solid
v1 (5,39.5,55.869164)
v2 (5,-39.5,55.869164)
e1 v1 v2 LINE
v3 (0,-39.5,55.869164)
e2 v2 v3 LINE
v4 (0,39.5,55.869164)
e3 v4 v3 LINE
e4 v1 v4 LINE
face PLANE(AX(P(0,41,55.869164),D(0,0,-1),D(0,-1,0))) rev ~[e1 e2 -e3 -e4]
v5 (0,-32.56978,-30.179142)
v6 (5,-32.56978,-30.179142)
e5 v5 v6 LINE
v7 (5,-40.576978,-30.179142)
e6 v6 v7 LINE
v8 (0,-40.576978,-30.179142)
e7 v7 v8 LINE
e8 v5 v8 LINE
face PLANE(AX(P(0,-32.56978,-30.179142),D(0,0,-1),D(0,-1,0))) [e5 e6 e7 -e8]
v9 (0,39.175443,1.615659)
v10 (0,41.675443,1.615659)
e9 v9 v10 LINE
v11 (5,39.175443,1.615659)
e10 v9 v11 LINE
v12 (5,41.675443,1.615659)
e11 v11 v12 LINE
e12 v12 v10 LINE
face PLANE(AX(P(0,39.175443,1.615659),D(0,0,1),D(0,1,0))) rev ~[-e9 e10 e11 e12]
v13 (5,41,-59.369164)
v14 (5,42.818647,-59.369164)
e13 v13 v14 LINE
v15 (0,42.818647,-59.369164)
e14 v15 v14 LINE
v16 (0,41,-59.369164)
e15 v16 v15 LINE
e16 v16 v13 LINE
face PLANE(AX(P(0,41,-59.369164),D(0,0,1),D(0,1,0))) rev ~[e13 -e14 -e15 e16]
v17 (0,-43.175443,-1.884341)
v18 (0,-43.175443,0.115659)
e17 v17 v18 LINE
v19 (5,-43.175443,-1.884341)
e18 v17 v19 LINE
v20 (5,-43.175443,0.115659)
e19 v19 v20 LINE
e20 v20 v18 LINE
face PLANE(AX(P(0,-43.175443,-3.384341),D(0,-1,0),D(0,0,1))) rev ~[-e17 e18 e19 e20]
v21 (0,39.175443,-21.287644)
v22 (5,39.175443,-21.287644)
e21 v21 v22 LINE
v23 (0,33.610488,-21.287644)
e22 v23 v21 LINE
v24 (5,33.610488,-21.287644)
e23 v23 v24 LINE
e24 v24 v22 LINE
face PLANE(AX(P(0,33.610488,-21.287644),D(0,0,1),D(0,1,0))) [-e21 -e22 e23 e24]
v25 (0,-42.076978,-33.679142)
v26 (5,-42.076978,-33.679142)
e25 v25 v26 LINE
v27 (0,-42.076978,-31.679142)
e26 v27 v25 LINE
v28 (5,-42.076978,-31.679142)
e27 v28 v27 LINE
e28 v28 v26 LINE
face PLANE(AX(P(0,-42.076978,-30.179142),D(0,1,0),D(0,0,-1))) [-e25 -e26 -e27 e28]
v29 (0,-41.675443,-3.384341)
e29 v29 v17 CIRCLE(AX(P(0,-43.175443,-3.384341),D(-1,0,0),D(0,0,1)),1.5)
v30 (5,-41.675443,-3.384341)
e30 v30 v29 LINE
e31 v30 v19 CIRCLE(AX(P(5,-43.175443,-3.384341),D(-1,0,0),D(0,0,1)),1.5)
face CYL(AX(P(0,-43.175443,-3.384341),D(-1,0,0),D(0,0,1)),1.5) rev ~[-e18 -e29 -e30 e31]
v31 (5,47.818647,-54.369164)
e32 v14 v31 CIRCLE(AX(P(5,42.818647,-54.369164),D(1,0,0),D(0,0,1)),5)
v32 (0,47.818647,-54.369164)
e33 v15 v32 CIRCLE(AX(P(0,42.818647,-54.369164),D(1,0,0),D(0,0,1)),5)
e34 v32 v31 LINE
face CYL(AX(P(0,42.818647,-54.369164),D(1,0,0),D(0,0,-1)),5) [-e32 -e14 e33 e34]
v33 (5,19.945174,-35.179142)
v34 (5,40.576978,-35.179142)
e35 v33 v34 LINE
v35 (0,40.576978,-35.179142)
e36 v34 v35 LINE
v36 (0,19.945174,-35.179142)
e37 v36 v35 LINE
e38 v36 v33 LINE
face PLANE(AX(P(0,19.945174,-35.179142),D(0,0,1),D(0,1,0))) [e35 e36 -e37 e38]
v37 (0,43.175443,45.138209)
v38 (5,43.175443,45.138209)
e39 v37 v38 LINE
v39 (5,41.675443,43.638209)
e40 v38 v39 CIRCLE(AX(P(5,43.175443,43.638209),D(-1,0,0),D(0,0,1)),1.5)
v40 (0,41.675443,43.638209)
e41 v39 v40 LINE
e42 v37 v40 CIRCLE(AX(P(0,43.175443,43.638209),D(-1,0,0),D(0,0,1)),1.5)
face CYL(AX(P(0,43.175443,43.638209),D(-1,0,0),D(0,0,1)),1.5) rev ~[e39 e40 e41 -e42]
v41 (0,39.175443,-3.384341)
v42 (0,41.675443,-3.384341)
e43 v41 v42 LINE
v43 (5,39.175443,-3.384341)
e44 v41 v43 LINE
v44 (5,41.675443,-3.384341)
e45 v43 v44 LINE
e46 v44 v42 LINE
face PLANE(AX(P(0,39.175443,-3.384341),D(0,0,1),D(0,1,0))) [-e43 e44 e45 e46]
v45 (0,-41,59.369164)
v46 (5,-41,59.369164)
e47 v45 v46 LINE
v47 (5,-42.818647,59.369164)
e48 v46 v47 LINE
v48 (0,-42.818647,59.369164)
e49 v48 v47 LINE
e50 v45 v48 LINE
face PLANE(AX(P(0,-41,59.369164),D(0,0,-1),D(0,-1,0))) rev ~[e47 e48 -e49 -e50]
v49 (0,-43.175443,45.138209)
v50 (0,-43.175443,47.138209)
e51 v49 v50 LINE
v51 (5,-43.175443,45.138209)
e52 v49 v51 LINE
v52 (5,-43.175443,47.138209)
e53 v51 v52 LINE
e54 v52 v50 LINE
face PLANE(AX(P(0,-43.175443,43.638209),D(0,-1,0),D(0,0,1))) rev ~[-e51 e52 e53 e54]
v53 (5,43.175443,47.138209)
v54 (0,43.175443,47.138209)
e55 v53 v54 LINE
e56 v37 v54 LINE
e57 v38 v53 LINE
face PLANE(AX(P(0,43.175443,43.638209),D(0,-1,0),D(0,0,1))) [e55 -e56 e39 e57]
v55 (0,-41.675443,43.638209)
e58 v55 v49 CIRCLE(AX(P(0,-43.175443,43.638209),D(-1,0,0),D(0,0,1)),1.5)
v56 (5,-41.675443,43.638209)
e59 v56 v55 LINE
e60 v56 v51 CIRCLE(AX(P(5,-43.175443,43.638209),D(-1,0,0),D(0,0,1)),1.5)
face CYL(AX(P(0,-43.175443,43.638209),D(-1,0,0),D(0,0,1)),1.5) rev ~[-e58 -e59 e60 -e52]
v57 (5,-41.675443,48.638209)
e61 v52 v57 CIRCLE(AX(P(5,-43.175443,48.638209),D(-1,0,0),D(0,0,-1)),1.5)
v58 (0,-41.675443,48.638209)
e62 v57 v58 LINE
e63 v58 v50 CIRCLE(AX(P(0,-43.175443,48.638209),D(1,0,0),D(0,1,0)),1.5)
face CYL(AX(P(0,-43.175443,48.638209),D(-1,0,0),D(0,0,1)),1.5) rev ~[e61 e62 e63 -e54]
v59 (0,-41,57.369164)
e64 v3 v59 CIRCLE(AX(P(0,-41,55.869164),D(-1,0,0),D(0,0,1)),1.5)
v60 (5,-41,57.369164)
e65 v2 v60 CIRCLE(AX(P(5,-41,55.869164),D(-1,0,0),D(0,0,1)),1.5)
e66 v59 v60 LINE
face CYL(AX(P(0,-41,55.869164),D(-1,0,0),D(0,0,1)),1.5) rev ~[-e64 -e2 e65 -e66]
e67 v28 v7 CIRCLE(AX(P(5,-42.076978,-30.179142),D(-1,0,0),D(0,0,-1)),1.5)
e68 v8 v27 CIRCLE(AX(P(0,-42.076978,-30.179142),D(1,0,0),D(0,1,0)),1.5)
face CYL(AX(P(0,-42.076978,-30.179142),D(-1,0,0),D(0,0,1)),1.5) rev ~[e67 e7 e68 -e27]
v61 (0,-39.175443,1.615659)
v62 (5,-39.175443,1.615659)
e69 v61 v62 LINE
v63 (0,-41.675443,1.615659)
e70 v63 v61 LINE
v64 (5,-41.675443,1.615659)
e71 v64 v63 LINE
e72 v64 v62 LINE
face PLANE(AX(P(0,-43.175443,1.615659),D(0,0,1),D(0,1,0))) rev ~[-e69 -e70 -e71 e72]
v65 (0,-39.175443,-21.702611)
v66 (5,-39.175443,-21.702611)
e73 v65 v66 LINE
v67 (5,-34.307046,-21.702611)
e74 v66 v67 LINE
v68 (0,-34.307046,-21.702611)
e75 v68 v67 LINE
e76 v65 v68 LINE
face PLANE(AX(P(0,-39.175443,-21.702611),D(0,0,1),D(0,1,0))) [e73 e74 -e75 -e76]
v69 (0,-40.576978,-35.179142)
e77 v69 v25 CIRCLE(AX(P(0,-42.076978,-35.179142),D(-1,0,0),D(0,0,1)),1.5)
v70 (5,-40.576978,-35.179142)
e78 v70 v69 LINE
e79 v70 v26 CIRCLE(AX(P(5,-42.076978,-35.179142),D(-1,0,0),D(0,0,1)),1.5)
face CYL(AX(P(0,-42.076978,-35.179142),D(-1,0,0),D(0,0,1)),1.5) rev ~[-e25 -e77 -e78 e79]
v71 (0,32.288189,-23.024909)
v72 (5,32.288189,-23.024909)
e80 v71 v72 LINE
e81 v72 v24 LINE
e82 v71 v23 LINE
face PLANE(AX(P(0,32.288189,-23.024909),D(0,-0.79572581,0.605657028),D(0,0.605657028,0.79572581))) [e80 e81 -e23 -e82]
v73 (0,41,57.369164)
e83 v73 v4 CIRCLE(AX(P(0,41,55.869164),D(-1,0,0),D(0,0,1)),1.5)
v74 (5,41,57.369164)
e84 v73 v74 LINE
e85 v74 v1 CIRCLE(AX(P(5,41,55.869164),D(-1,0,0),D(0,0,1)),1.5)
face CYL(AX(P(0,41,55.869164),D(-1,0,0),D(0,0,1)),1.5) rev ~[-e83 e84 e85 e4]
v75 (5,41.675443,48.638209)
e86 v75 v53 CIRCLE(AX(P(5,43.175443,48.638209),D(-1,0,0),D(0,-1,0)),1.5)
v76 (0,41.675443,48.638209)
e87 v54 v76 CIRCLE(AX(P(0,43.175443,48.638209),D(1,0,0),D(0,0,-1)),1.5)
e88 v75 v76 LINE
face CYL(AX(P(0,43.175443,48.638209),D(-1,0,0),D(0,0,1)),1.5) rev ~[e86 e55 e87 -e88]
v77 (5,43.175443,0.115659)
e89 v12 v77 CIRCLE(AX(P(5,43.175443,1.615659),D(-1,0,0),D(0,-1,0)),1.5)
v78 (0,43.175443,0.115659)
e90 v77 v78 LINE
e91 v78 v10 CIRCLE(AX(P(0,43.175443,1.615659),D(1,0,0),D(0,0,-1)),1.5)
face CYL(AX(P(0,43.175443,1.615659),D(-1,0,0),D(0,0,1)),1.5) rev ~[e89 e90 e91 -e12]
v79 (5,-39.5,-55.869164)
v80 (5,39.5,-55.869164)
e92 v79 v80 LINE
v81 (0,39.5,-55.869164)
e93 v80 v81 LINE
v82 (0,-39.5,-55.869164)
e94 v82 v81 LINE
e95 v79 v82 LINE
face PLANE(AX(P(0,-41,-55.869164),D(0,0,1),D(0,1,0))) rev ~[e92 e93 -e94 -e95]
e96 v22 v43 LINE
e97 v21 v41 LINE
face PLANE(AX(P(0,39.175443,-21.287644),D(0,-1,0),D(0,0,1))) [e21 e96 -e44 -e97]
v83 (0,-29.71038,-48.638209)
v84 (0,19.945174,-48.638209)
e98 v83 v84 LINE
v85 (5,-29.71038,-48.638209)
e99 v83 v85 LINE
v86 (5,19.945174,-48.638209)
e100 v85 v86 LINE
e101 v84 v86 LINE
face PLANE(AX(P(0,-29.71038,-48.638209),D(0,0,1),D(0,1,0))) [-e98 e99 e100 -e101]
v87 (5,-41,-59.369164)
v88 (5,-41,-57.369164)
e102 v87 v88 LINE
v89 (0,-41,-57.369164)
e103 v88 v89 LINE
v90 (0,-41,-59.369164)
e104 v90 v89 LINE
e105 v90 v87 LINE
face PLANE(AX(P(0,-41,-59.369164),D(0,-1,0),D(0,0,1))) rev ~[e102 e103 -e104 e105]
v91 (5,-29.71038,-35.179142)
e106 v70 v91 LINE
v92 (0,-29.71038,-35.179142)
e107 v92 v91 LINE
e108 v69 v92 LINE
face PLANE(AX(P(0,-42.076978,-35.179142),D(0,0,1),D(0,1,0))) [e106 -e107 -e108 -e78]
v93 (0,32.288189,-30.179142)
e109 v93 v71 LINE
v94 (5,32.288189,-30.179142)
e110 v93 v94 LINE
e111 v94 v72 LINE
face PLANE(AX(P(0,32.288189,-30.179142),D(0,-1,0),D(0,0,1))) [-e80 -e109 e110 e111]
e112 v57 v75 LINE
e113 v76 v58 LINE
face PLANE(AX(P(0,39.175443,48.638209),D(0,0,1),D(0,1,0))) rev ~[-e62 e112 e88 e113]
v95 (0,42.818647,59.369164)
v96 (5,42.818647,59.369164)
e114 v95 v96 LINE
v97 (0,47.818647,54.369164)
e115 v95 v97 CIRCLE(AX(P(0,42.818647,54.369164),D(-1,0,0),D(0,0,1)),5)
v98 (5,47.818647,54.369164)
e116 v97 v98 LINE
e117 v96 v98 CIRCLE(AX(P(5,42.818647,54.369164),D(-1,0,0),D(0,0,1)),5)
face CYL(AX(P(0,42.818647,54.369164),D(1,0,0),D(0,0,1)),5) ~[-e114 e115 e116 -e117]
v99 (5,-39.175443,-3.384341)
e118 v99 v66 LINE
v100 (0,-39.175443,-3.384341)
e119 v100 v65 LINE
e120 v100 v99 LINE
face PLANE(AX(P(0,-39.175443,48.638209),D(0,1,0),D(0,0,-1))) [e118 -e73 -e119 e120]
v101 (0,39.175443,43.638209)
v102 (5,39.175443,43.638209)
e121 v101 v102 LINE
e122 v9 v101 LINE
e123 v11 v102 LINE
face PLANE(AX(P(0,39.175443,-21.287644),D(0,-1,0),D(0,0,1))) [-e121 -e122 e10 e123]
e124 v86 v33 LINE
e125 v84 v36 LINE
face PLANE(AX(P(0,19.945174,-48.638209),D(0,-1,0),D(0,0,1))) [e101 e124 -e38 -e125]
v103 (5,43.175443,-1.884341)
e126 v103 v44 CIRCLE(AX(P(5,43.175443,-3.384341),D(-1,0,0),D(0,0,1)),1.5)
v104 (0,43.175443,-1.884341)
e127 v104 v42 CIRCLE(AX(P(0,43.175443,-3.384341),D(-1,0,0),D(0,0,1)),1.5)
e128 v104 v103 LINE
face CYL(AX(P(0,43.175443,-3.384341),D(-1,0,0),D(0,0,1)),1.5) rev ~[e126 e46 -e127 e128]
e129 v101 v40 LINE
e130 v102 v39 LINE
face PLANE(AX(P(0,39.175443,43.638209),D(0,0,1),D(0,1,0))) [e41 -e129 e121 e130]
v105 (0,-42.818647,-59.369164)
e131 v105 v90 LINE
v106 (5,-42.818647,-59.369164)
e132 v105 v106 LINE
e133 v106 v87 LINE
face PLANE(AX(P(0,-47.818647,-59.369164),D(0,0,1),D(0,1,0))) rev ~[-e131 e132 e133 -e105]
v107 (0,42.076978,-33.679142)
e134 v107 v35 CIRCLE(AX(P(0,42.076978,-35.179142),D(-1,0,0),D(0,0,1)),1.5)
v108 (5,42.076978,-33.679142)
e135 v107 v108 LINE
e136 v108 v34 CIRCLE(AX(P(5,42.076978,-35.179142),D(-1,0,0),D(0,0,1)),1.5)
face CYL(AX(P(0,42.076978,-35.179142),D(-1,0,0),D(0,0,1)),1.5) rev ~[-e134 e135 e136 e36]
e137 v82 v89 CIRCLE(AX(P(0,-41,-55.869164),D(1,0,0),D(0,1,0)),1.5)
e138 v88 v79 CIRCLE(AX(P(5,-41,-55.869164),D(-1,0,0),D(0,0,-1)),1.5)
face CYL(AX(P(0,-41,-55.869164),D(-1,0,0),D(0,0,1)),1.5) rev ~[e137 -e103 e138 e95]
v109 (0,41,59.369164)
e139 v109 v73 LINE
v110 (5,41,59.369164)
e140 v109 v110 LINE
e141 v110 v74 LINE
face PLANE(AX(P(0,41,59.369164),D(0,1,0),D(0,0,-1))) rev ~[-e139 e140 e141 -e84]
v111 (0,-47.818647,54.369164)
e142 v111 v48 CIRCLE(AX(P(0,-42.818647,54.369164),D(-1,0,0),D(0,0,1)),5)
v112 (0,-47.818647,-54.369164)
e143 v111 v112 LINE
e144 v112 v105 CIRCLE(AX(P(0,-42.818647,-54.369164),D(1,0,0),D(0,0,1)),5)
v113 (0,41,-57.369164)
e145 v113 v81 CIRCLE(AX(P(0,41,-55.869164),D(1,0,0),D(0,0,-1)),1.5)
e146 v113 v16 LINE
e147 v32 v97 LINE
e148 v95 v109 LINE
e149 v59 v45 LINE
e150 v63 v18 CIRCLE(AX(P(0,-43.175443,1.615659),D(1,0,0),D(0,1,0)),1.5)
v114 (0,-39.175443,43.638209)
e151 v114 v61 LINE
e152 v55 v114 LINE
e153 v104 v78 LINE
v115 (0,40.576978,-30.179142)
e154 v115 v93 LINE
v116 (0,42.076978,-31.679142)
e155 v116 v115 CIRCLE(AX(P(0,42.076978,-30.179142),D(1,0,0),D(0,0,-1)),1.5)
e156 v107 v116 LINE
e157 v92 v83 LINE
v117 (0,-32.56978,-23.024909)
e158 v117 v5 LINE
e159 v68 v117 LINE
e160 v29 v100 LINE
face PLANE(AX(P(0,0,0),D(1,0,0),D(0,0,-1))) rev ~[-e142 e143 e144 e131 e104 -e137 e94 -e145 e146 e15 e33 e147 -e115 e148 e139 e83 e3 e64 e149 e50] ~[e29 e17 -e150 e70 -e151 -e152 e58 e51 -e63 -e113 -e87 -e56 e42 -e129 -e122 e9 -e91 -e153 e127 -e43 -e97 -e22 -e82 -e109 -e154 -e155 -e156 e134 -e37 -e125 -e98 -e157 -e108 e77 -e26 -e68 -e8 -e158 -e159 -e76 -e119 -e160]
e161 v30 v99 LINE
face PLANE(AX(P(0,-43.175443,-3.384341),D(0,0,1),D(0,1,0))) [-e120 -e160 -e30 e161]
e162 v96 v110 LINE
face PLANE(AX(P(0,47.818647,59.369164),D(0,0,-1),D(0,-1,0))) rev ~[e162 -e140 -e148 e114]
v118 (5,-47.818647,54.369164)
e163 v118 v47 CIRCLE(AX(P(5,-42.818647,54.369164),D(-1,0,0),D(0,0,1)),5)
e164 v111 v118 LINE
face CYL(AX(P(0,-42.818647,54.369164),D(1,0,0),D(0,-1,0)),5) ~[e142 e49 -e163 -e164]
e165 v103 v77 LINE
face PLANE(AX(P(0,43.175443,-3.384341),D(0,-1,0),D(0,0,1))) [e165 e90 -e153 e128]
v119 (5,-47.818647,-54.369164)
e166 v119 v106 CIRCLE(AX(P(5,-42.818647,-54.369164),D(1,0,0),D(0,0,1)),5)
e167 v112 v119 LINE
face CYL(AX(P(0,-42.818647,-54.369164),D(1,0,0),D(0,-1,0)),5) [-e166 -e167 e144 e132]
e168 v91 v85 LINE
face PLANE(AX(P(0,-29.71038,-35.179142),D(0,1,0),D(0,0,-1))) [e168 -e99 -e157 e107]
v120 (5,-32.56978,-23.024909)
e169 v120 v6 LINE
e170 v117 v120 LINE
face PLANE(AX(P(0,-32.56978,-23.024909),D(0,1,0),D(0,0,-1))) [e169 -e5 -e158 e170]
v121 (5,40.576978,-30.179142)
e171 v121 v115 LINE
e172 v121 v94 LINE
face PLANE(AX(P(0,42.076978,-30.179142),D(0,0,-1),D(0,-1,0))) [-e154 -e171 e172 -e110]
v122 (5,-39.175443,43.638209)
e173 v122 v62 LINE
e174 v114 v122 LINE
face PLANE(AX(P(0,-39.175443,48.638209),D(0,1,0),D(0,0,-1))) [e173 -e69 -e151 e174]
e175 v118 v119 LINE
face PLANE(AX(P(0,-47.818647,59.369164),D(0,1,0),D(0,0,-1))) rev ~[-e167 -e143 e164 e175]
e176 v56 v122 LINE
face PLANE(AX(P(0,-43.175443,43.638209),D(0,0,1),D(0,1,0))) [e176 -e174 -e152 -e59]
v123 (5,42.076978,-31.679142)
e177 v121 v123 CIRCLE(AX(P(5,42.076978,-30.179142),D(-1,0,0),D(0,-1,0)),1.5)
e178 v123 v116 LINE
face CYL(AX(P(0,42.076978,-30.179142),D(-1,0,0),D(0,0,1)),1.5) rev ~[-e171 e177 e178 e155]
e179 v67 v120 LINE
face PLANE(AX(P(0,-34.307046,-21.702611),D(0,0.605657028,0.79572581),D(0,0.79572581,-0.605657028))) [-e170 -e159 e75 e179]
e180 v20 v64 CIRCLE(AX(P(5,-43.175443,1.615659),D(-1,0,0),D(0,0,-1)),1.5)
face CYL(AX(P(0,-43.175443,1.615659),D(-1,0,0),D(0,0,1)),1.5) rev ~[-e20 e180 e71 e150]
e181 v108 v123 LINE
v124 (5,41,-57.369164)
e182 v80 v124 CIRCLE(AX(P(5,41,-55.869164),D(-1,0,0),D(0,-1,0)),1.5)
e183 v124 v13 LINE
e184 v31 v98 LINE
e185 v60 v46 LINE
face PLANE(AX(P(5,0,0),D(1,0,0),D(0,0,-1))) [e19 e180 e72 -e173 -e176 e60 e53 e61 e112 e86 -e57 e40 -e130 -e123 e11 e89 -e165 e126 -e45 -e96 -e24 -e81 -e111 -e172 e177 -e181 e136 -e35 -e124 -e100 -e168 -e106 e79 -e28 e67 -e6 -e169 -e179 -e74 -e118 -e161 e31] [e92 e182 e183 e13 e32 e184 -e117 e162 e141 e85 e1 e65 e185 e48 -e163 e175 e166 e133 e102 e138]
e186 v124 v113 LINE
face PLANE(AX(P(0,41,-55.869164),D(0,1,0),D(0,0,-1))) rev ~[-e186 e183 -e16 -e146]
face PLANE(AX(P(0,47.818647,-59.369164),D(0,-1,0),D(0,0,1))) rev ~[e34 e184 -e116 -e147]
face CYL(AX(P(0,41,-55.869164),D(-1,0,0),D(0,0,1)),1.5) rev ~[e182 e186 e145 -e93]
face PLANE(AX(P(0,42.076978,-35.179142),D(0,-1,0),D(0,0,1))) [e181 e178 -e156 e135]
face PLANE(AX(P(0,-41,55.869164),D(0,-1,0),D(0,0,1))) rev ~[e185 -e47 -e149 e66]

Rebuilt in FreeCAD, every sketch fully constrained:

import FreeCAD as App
import Part
import Sketcher
from FreeCAD import Vector


def edges_at(feature, points):
    """Names of the edges that pass closest to the given points."""
    edges = feature.Shape.Edges
    near = lambda p: min(range(len(edges)), key=lambda i: edges[i].distToShape(Part.Vertex(*p))[0])
    return sorted({f"Edge{near(p) + 1}" for p in points})

doc = App.newDocument("Part")
body = doc.addObject("PartDesign::Body", "Body")

sketch1 = body.newObject("Sketcher::SketchObject", "Sketch")
sketch1.AttachmentSupport = (doc.getObject("YZ_Plane"), [""])
sketch1.MapMode = "FlatFace"
sketch1.addGeometry([
    Part.LineSegment(Vector(-47.818647, 59.369164, 0), Vector(-47.818647, -59.369164, 0)),
    Part.LineSegment(Vector(-47.818647, -59.369164, 0), Vector(-41, -59.369164, 0)),
    Part.LineSegment(Vector(-41, -59.369164, 0), Vector(-41, -55.869164, 0)),
    Part.LineSegment(Vector(-41, -55.869164, 0), Vector(41, -55.869164, 0)),
    Part.LineSegment(Vector(41, -55.869164, 0), Vector(41, -59.369164, 0)),
    Part.LineSegment(Vector(41, -59.369164, 0), Vector(47.818647, -59.369164, 0)),
    Part.LineSegment(Vector(47.818647, -59.369164, 0), Vector(47.818647, 59.369164, 0)),
    Part.LineSegment(Vector(47.818647, 59.369164, 0), Vector(41, 59.369164, 0)),
    Part.LineSegment(Vector(41, 59.369164, 0), Vector(41, 55.869164, 0)),
    Part.LineSegment(Vector(41, 55.869164, 0), Vector(-41, 55.869164, 0)),
    Part.LineSegment(Vector(-41, 55.869164, 0), Vector(-41, 59.369164, 0)),
    Part.LineSegment(Vector(-41, 59.369164, 0), Vector(-47.818647, 59.369164, 0)),
    Part.LineSegment(Vector(-34.307046, -21.702611, 0), Vector(-39.175443, -21.702611, 0)),
    Part.LineSegment(Vector(-39.175443, -21.702611, 0), Vector(-39.175443, 48.638209, 0)),
    Part.LineSegment(Vector(-39.175443, 48.638209, 0), Vector(39.175443, 48.638209, 0)),
    Part.LineSegment(Vector(39.175443, 48.638209, 0), Vector(39.175443, -21.287644, 0)),
    Part.LineSegment(Vector(39.175443, -21.287644, 0), Vector(33.610488, -21.287644, 0)),
    Part.LineSegment(Vector(33.610488, -21.287644, 0), Vector(32.288189, -23.024909, 0)),
    Part.LineSegment(Vector(32.288189, -23.024909, 0), Vector(32.288189, -30.179142, 0)),
    Part.LineSegment(Vector(32.288189, -30.179142, 0), Vector(42.076978, -30.179142, 0)),
    Part.LineSegment(Vector(42.076978, -30.179142, 0), Vector(42.076978, -35.179142, 0)),
    Part.LineSegment(Vector(42.076978, -35.179142, 0), Vector(19.945174, -35.179142, 0)),
    Part.LineSegment(Vector(19.945174, -35.179142, 0), Vector(19.945174, -48.638209, 0)),
    Part.LineSegment(Vector(19.945174, -48.638209, 0), Vector(-29.71038, -48.638209, 0)),
    Part.LineSegment(Vector(-29.71038, -48.638209, 0), Vector(-29.71038, -35.179142, 0)),
    Part.LineSegment(Vector(-29.71038, -35.179142, 0), Vector(-42.076978, -35.179142, 0)),
    Part.LineSegment(Vector(-42.076978, -35.179142, 0), Vector(-42.076978, -30.179142, 0)),
    Part.LineSegment(Vector(-42.076978, -30.179142, 0), Vector(-32.56978, -30.179142, 0)),
    Part.LineSegment(Vector(-32.56978, -30.179142, 0), Vector(-32.56978, -23.024909, 0)),
    Part.LineSegment(Vector(-32.56978, -23.024909, 0), Vector(-34.307046, -21.702611, 0)),
], False)
sketch1.addConstraint([
    Sketcher.Constraint("Coincident", 0, 2, 1, 1),
    Sketcher.Constraint("Coincident", 1, 2, 2, 1),
    Sketcher.Constraint("Coincident", 2, 2, 3, 1),
    Sketcher.Constraint("Coincident", 3, 2, 4, 1),
    Sketcher.Constraint("Coincident", 4, 2, 5, 1),
    Sketcher.Constraint("Coincident", 5, 2, 6, 1),
    Sketcher.Constraint("Coincident", 6, 2, 7, 1),
    Sketcher.Constraint("Coincident", 7, 2, 8, 1),
    Sketcher.Constraint("Coincident", 8, 2, 9, 1),
    Sketcher.Constraint("Coincident", 9, 2, 10, 1),
    Sketcher.Constraint("Coincident", 10, 2, 11, 1),
    Sketcher.Constraint("Coincident", 11, 2, 0, 1),
    Sketcher.Constraint("Coincident", 12, 2, 13, 1),
    Sketcher.Constraint("Coincident", 13, 2, 14, 1),
    Sketcher.Constraint("Coincident", 14, 2, 15, 1),
    Sketcher.Constraint("Coincident", 15, 2, 16, 1),
    Sketcher.Constraint("Coincident", 16, 2, 17, 1),
    Sketcher.Constraint("Coincident", 17, 2, 18, 1),
    Sketcher.Constraint("Coincident", 18, 2, 19, 1),
    Sketcher.Constraint("Coincident", 19, 2, 20, 1),
    Sketcher.Constraint("Coincident", 20, 2, 21, 1),
    Sketcher.Constraint("Coincident", 21, 2, 22, 1),
    Sketcher.Constraint("Coincident", 22, 2, 23, 1),
    Sketcher.Constraint("Coincident", 23, 2, 24, 1),
    Sketcher.Constraint("Coincident", 24, 2, 25, 1),
    Sketcher.Constraint("Coincident", 25, 2, 26, 1),
    Sketcher.Constraint("Coincident", 26, 2, 27, 1),
    Sketcher.Constraint("Coincident", 27, 2, 28, 1),
    Sketcher.Constraint("Coincident", 28, 2, 29, 1),
    Sketcher.Constraint("Coincident", 29, 2, 12, 1),
    Sketcher.Constraint("Vertical", 0),
    Sketcher.Constraint("Horizontal", 1),
    Sketcher.Constraint("Vertical", 2),
    Sketcher.Constraint("Horizontal", 3),
    Sketcher.Constraint("Vertical", 4),
    Sketcher.Constraint("Horizontal", 5),
    Sketcher.Constraint("Vertical", 6),
    Sketcher.Constraint("Horizontal", 7),
    Sketcher.Constraint("Vertical", 8),
    Sketcher.Constraint("Horizontal", 9),
    Sketcher.Constraint("Vertical", 10),
    Sketcher.Constraint("Horizontal", 11),
    Sketcher.Constraint("Horizontal", 12),
    Sketcher.Constraint("Vertical", 13),
    Sketcher.Constraint("Horizontal", 14),
    Sketcher.Constraint("Vertical", 15),
    Sketcher.Constraint("Horizontal", 16),
    Sketcher.Constraint("Vertical", 18),
    Sketcher.Constraint("Horizontal", 19),
    Sketcher.Constraint("Vertical", 20),
    Sketcher.Constraint("Horizontal", 21),
    Sketcher.Constraint("Vertical", 22),
    Sketcher.Constraint("Horizontal", 23),
    Sketcher.Constraint("Vertical", 24),
    Sketcher.Constraint("Horizontal", 25),
    Sketcher.Constraint("Vertical", 26),
    Sketcher.Constraint("Horizontal", 27),
    Sketcher.Constraint("Vertical", 28),
    Sketcher.Constraint("Symmetric", 0, 2, 6, 2, -1, 1),
    Sketcher.Constraint("Symmetric", 2, 2, 8, 2, -1, 1),
    Sketcher.Constraint("Symmetric", 4, 2, 10, 2, -1, 1),
    Sketcher.Constraint("Symmetric", 1, 2, 4, 2, -2),
    Sketcher.Constraint("Symmetric", 20, 2, 25, 2, -2),
    Sketcher.Constraint("Perpendicular", 17, 29),
    Sketcher.Constraint("Horizontal", 19, 2, 26, 2),
    Sketcher.Constraint("Horizontal", 17, 2, 28, 2),
    Sketcher.Constraint("Equal", 17, 29),
    Sketcher.Constraint("DistanceX", 3, 1, 3, 2, 82.0),
    Sketcher.Constraint("DistanceY", 20, 2, 20, 1, 5.0),
    Sketcher.Constraint("DistanceY", 2, 1, 2, 2, 3.5),
    Sketcher.Constraint("DistanceX", 25, 2, 25, 1, 12.366598),
    Sketcher.Constraint("DistanceX", 27, 1, 27, 2, 9.507198),
    Sketcher.Constraint("DistanceX", 19, 1, 19, 2, 9.788789),
    Sketcher.Constraint("DistanceY", 0, 2, 0, 1, 118.738328),
    Sketcher.Constraint("DistanceY", 13, 1, 13, 2, 70.340819),
    Sketcher.Constraint("DistanceX", 17, 2, 16, 2, 1.322299),
    Sketcher.Constraint("DistanceY", 23, 2, 12, 2, 26.935598),
    Sketcher.Constraint("DistanceX", 1, 1, 1, 2, 6.818647),
    Sketcher.Constraint("DistanceX", 12, 2, 12, 1, 4.868397),
    Sketcher.Constraint("DistanceX", 14, 1, 14, 2, 78.350886),
    Sketcher.Constraint("DistanceX", 16, 2, 16, 1, 5.564955),
    Sketcher.Constraint("DistanceX", 21, 2, 21, 1, 22.131804),
    Sketcher.Constraint("DistanceX", 23, 2, 23, 1, 49.655554),
    Sketcher.Constraint("DistanceY", 18, 2, 18, 1, 7.154232),
    Sketcher.Constraint("DistanceY", 12, 2, -1, 1, 21.702611),
])
pad1 = body.newObject("PartDesign::Pad", "Pad")
pad1.Profile = sketch1
pad1.Length = 5
doc.recompute()

fillet = body.newObject("PartDesign::Fillet", "Fillet")
fillet.Base = (pad1, edges_at(pad1, [
    (2.5, -47.819, -59.369),
    (2.5, -47.819, 59.369),
    (2.5, 47.819, 59.369),
    (2.5, 47.819, -59.369),
]))
fillet.Radius = 5

sketch2 = body.newObject("Sketcher::SketchObject", "Sketch001")
sketch2.AttachmentSupport = (doc.getObject("YZ_Plane"), [""])
sketch2.MapMode = "FlatFace"
sketch2.addGeometry([
    Part.LineSegment(Vector(43.175443, 43.638209, 0), Vector(39.175443, 43.638209, 0)),
    Part.LineSegment(Vector(39.175443, 43.638209, 0), Vector(39.175443, 48.638209, 0)),
    Part.LineSegment(Vector(39.175443, 48.638209, 0), Vector(43.175443, 48.638209, 0)),
    Part.LineSegment(Vector(43.175443, 48.638209, 0), Vector(43.175443, 43.638209, 0)),
], False)
sketch2.addConstraint([
    Sketcher.Constraint("Coincident", 0, 2, 1, 1),
    Sketcher.Constraint("Coincident", 1, 2, 2, 1),
    Sketcher.Constraint("Coincident", 2, 2, 3, 1),
    Sketcher.Constraint("Coincident", 3, 2, 0, 1),
    Sketcher.Constraint("Horizontal", 0),
    Sketcher.Constraint("Vertical", 1),
    Sketcher.Constraint("Horizontal", 2),
    Sketcher.Constraint("Vertical", 3),
    Sketcher.Constraint("DistanceX", 0, 2, 0, 1, 4.0),
    Sketcher.Constraint("DistanceY", 1, 1, 1, 2, 5.0),
    Sketcher.Constraint("DistanceY", -1, 1, 0, 2, 43.638209),
    Sketcher.Constraint("DistanceX", -1, 1, 0, 2, 39.175443),
])
pocket1 = body.newObject("PartDesign::Pocket", "Pocket")
pocket1.Profile = sketch2
pocket1.Type = "UpToFirst"
pocket1.Reversed = True

sketch3 = body.newObject("Sketcher::SketchObject", "Sketch002")
sketch3.AttachmentSupport = (doc.getObject("YZ_Plane"), [""])
sketch3.MapMode = "FlatFace"
sketch3.addGeometry([
    Part.LineSegment(Vector(-39.175443, 43.638209, 0), Vector(-43.175443, 43.638209, 0)),
    Part.LineSegment(Vector(-43.175443, 43.638209, 0), Vector(-43.175443, 48.638209, 0)),
    Part.LineSegment(Vector(-43.175443, 48.638209, 0), Vector(-39.175443, 48.638209, 0)),
    Part.LineSegment(Vector(-39.175443, 48.638209, 0), Vector(-39.175443, 43.638209, 0)),
], False)
sketch3.addConstraint([
    Sketcher.Constraint("Coincident", 0, 2, 1, 1),
    Sketcher.Constraint("Coincident", 1, 2, 2, 1),
    Sketcher.Constraint("Coincident", 2, 2, 3, 1),
    Sketcher.Constraint("Coincident", 3, 2, 0, 1),
    Sketcher.Constraint("Horizontal", 0),
    Sketcher.Constraint("Vertical", 1),
    Sketcher.Constraint("Horizontal", 2),
    Sketcher.Constraint("Vertical", 3),
    Sketcher.Constraint("DistanceX", 0, 2, 0, 1, 4.0),
    Sketcher.Constraint("DistanceY", 1, 1, 1, 2, 5.0),
    Sketcher.Constraint("DistanceY", -1, 1, 0, 2, 43.638209),
    Sketcher.Constraint("DistanceX", 0, 2, -1, 1, 43.175443),
])
pocket2 = body.newObject("PartDesign::Pocket", "Pocket001")
pocket2.Profile = sketch3
pocket2.Type = "UpToFirst"
pocket2.Reversed = True

sketch4 = body.newObject("Sketcher::SketchObject", "Sketch003")
sketch4.AttachmentSupport = (doc.getObject("YZ_Plane"), [""])
sketch4.MapMode = "FlatFace"
sketch4.addGeometry([
    Part.LineSegment(Vector(-39.175443, -3.384341, 0), Vector(-43.175443, -3.384341, 0)),
    Part.LineSegment(Vector(-43.175443, -3.384341, 0), Vector(-43.175443, 1.615659, 0)),
    Part.LineSegment(Vector(-43.175443, 1.615659, 0), Vector(-39.175443, 1.615659, 0)),
    Part.LineSegment(Vector(-39.175443, 1.615659, 0), Vector(-39.175443, -3.384341, 0)),
], False)
sketch4.addConstraint([
    Sketcher.Constraint("Coincident", 0, 2, 1, 1),
    Sketcher.Constraint("Coincident", 1, 2, 2, 1),
    Sketcher.Constraint("Coincident", 2, 2, 3, 1),
    Sketcher.Constraint("Coincident", 3, 2, 0, 1),
    Sketcher.Constraint("Horizontal", 0),
    Sketcher.Constraint("Vertical", 1),
    Sketcher.Constraint("Horizontal", 2),
    Sketcher.Constraint("Vertical", 3),
    Sketcher.Constraint("DistanceX", 0, 2, 0, 1, 4.0),
    Sketcher.Constraint("DistanceY", 1, 1, 1, 2, 5.0),
    Sketcher.Constraint("DistanceY", 0, 2, -1, 1, 3.384341),
    Sketcher.Constraint("DistanceX", 0, 2, -1, 1, 43.175443),
])
pocket3 = body.newObject("PartDesign::Pocket", "Pocket002")
pocket3.Profile = sketch4
pocket3.Type = "UpToFirst"
pocket3.Reversed = True

sketch5 = body.newObject("Sketcher::SketchObject", "Sketch004")
sketch5.AttachmentSupport = (doc.getObject("YZ_Plane"), [""])
sketch5.MapMode = "FlatFace"
sketch5.addGeometry([
    Part.LineSegment(Vector(43.175443, -3.384341, 0), Vector(39.175443, -3.384341, 0)),
    Part.LineSegment(Vector(39.175443, -3.384341, 0), Vector(39.175443, 1.615659, 0)),
    Part.LineSegment(Vector(39.175443, 1.615659, 0), Vector(43.175443, 1.615659, 0)),
    Part.LineSegment(Vector(43.175443, 1.615659, 0), Vector(43.175443, -3.384341, 0)),
], False)
sketch5.addConstraint([
    Sketcher.Constraint("Coincident", 0, 2, 1, 1),
    Sketcher.Constraint("Coincident", 1, 2, 2, 1),
    Sketcher.Constraint("Coincident", 2, 2, 3, 1),
    Sketcher.Constraint("Coincident", 3, 2, 0, 1),
    Sketcher.Constraint("Horizontal", 0),
    Sketcher.Constraint("Vertical", 1),
    Sketcher.Constraint("Horizontal", 2),
    Sketcher.Constraint("Vertical", 3),
    Sketcher.Constraint("DistanceX", 0, 2, 0, 1, 4.0),
    Sketcher.Constraint("DistanceY", 1, 1, 1, 2, 5.0),
    Sketcher.Constraint("DistanceY", 0, 2, -1, 1, 3.384341),
    Sketcher.Constraint("DistanceX", -1, 1, 0, 2, 39.175443),
])
pocket4 = body.newObject("PartDesign::Pocket", "Pocket003")
pocket4.Profile = sketch5
pocket4.Type = "UpToFirst"
pocket4.Reversed = True

sketch6 = body.newObject("Sketcher::SketchObject", "Sketch005")
sketch6.AttachmentSupport = (doc.getObject("YZ_Plane"), [""])
sketch6.MapMode = "FlatFace"
sketch6.addGeometry(Part.Circle(Vector(42.076978, -35.179142, 0), Vector(0, 0, 1), 1.5), False)
sketch6.addConstraint([
    Sketcher.Constraint("Diameter", 0, 3.0),
    Sketcher.Constraint("DistanceX", -1, 1, 0, 3, 42.076978),
    Sketcher.Constraint("DistanceY", 0, 3, -1, 1, 35.179142),
])
pocket5 = body.newObject("PartDesign::Pocket", "Pocket004")
pocket5.Profile = sketch6
pocket5.Type = "UpToFirst"
pocket5.Reversed = True

sketch7 = body.newObject("Sketcher::SketchObject", "Sketch006")
sketch7.AttachmentSupport = (doc.getObject("YZ_Plane"), [""])
sketch7.MapMode = "FlatFace"
sketch7.addGeometry(Part.Circle(Vector(42.076978, -30.179142, 0), Vector(0, 0, 1), 1.5), False)
sketch7.addConstraint([
    Sketcher.Constraint("Diameter", 0, 3.0),
    Sketcher.Constraint("DistanceX", -1, 1, 0, 3, 42.076978),
    Sketcher.Constraint("DistanceY", 0, 3, -1, 1, 30.179142),
])
pocket6 = body.newObject("PartDesign::Pocket", "Pocket005")
pocket6.Profile = sketch7
pocket6.Type = "UpToFirst"
pocket6.Reversed = True

sketch8 = body.newObject("Sketcher::SketchObject", "Sketch007")
sketch8.AttachmentSupport = (doc.getObject("YZ_Plane"), [""])
sketch8.MapMode = "FlatFace"
sketch8.addGeometry(Part.Circle(Vector(43.175443, -3.384341, 0), Vector(0, 0, 1), 1.5), False)
sketch8.addConstraint([
    Sketcher.Constraint("Diameter", 0, 3.0),
    Sketcher.Constraint("DistanceY", 0, 3, -1, 1, 3.384341),
    Sketcher.Constraint("DistanceX", -1, 1, 0, 3, 43.175443),
])
pocket7 = body.newObject("PartDesign::Pocket", "Pocket006")
pocket7.Profile = sketch8
pocket7.Type = "UpToFirst"
pocket7.Reversed = True

sketch9 = body.newObject("Sketcher::SketchObject", "Sketch008")
sketch9.AttachmentSupport = (doc.getObject("YZ_Plane"), [""])
sketch9.MapMode = "FlatFace"
sketch9.addGeometry(Part.Circle(Vector(43.175443, 1.615659, 0), Vector(0, 0, 1), 1.5), False)
sketch9.addConstraint([
    Sketcher.Constraint("Diameter", 0, 3.0),
    Sketcher.Constraint("DistanceY", -1, 1, 0, 3, 1.615659),
    Sketcher.Constraint("DistanceX", -1, 1, 0, 3, 43.175443),
])
pocket8 = body.newObject("PartDesign::Pocket", "Pocket007")
pocket8.Profile = sketch9
pocket8.Type = "UpToFirst"
pocket8.Reversed = True

sketch10 = body.newObject("Sketcher::SketchObject", "Sketch009")
sketch10.AttachmentSupport = (doc.getObject("YZ_Plane"), [""])
sketch10.MapMode = "FlatFace"
sketch10.addGeometry(Part.Circle(Vector(41, -55.869164, 0), Vector(0, 0, 1), 1.5), False)
sketch10.addConstraint([
    Sketcher.Constraint("Diameter", 0, 3.0),
    Sketcher.Constraint("DistanceX", -1, 1, 0, 3, 41.0),
    Sketcher.Constraint("DistanceY", 0, 3, -1, 1, 55.869164),
])
pocket9 = body.newObject("PartDesign::Pocket", "Pocket008")
pocket9.Profile = sketch10
pocket9.Type = "UpToFirst"
pocket9.Reversed = True

sketch11 = body.newObject("Sketcher::SketchObject", "Sketch010")
sketch11.AttachmentSupport = (doc.getObject("YZ_Plane"), [""])
sketch11.MapMode = "FlatFace"
sketch11.addGeometry(Part.Circle(Vector(43.175443, 43.638209, 0), Vector(0, 0, 1), 1.5), False)
sketch11.addConstraint([
    Sketcher.Constraint("Diameter", 0, 3.0),
    Sketcher.Constraint("DistanceY", -1, 1, 0, 3, 43.638209),
    Sketcher.Constraint("DistanceX", -1, 1, 0, 3, 43.175443),
])
pocket10 = body.newObject("PartDesign::Pocket", "Pocket009")
pocket10.Profile = sketch11
pocket10.Type = "UpToFirst"
pocket10.Reversed = True

sketch12 = body.newObject("Sketcher::SketchObject", "Sketch011")
sketch12.AttachmentSupport = (doc.getObject("YZ_Plane"), [""])
sketch12.MapMode = "FlatFace"
sketch12.addGeometry(Part.Circle(Vector(43.175443, 48.638209, 0), Vector(0, 0, 1), 1.5), False)
sketch12.addConstraint([
    Sketcher.Constraint("Diameter", 0, 3.0),
    Sketcher.Constraint("DistanceY", -1, 1, 0, 3, 48.638209),
    Sketcher.Constraint("DistanceX", -1, 1, 0, 3, 43.175443),
])
pocket11 = body.newObject("PartDesign::Pocket", "Pocket010")
pocket11.Profile = sketch12
pocket11.Type = "UpToFirst"
pocket11.Reversed = True

sketch13 = body.newObject("Sketcher::SketchObject", "Sketch012")
sketch13.AttachmentSupport = (doc.getObject("YZ_Plane"), [""])
sketch13.MapMode = "FlatFace"
sketch13.addGeometry(Part.Circle(Vector(-43.175443, 48.638209, 0), Vector(0, 0, 1), 1.5), False)
sketch13.addConstraint([
    Sketcher.Constraint("Diameter", 0, 3.0),
    Sketcher.Constraint("DistanceY", -1, 1, 0, 3, 48.638209),
    Sketcher.Constraint("DistanceX", 0, 3, -1, 1, 43.175443),
])
pocket12 = body.newObject("PartDesign::Pocket", "Pocket011")
pocket12.Profile = sketch13
pocket12.Type = "UpToFirst"
pocket12.Reversed = True

sketch14 = body.newObject("Sketcher::SketchObject", "Sketch013")
sketch14.AttachmentSupport = (doc.getObject("YZ_Plane"), [""])
sketch14.MapMode = "FlatFace"
sketch14.addGeometry(Part.Circle(Vector(-43.175443, 43.638209, 0), Vector(0, 0, 1), 1.5), False)
sketch14.addConstraint([
    Sketcher.Constraint("Diameter", 0, 3.0),
    Sketcher.Constraint("DistanceY", -1, 1, 0, 3, 43.638209),
    Sketcher.Constraint("DistanceX", 0, 3, -1, 1, 43.175443),
])
pocket13 = body.newObject("PartDesign::Pocket", "Pocket012")
pocket13.Profile = sketch14
pocket13.Type = "UpToFirst"
pocket13.Reversed = True

sketch15 = body.newObject("Sketcher::SketchObject", "Sketch014")
sketch15.AttachmentSupport = (doc.getObject("YZ_Plane"), [""])
sketch15.MapMode = "FlatFace"
sketch15.addGeometry(Part.Circle(Vector(-43.175443, 1.615659, 0), Vector(0, 0, 1), 1.5), False)
sketch15.addConstraint([
    Sketcher.Constraint("Diameter", 0, 3.0),
    Sketcher.Constraint("DistanceY", -1, 1, 0, 3, 1.615659),
    Sketcher.Constraint("DistanceX", 0, 3, -1, 1, 43.175443),
])
pocket14 = body.newObject("PartDesign::Pocket", "Pocket013")
pocket14.Profile = sketch15
pocket14.Type = "UpToFirst"
pocket14.Reversed = True

sketch16 = body.newObject("Sketcher::SketchObject", "Sketch015")
sketch16.AttachmentSupport = (doc.getObject("YZ_Plane"), [""])
sketch16.MapMode = "FlatFace"
sketch16.addGeometry(Part.Circle(Vector(-43.175443, -3.384341, 0), Vector(0, 0, 1), 1.5), False)
sketch16.addConstraint([
    Sketcher.Constraint("Diameter", 0, 3.0),
    Sketcher.Constraint("DistanceY", 0, 3, -1, 1, 3.384341),
    Sketcher.Constraint("DistanceX", 0, 3, -1, 1, 43.175443),
])
pocket15 = body.newObject("PartDesign::Pocket", "Pocket014")
pocket15.Profile = sketch16
pocket15.Type = "UpToFirst"
pocket15.Reversed = True

sketch17 = body.newObject("Sketcher::SketchObject", "Sketch016")
sketch17.AttachmentSupport = (doc.getObject("YZ_Plane"), [""])
sketch17.MapMode = "FlatFace"
sketch17.addGeometry(Part.Circle(Vector(-42.076978, -30.179142, 0), Vector(0, 0, 1), 1.5), False)
sketch17.addConstraint([
    Sketcher.Constraint("Diameter", 0, 3.0),
    Sketcher.Constraint("DistanceX", 0, 3, -1, 1, 42.076978),
    Sketcher.Constraint("DistanceY", 0, 3, -1, 1, 30.179142),
])
pocket16 = body.newObject("PartDesign::Pocket", "Pocket015")
pocket16.Profile = sketch17
pocket16.Type = "UpToFirst"
pocket16.Reversed = True

sketch18 = body.newObject("Sketcher::SketchObject", "Sketch017")
sketch18.AttachmentSupport = (doc.getObject("YZ_Plane"), [""])
sketch18.MapMode = "FlatFace"
sketch18.addGeometry(Part.Circle(Vector(-42.076978, -35.179142, 0), Vector(0, 0, 1), 1.5), False)
sketch18.addConstraint([
    Sketcher.Constraint("Diameter", 0, 3.0),
    Sketcher.Constraint("DistanceX", 0, 3, -1, 1, 42.076978),
    Sketcher.Constraint("DistanceY", 0, 3, -1, 1, 35.179142),
])
pocket17 = body.newObject("PartDesign::Pocket", "Pocket016")
pocket17.Profile = sketch18
pocket17.Type = "UpToFirst"
pocket17.Reversed = True

sketch19 = body.newObject("Sketcher::SketchObject", "Sketch018")
sketch19.AttachmentSupport = (doc.getObject("YZ_Plane"), [""])
sketch19.MapMode = "FlatFace"
sketch19.addGeometry(Part.Circle(Vector(-41, -55.869164, 0), Vector(0, 0, 1), 1.5), False)
sketch19.addConstraint([
    Sketcher.Constraint("Diameter", 0, 3.0),
    Sketcher.Constraint("DistanceX", 0, 3, -1, 1, 41.0),
    Sketcher.Constraint("DistanceY", 0, 3, -1, 1, 55.869164),
])
pocket18 = body.newObject("PartDesign::Pocket", "Pocket017")
pocket18.Profile = sketch19
pocket18.Type = "UpToFirst"
pocket18.Reversed = True

sketch20 = body.newObject("Sketcher::SketchObject", "Sketch019")
sketch20.AttachmentSupport = (doc.getObject("YZ_Plane"), [""])
sketch20.MapMode = "FlatFace"
sketch20.addGeometry(Part.Circle(Vector(-41, 55.869164, 0), Vector(0, 0, 1), 1.5), False)
sketch20.addConstraint([
    Sketcher.Constraint("Diameter", 0, 3.0),
    Sketcher.Constraint("DistanceX", 0, 3, -1, 1, 41.0),
    Sketcher.Constraint("DistanceY", -1, 1, 0, 3, 55.869164),
])
pocket19 = body.newObject("PartDesign::Pocket", "Pocket018")
pocket19.Profile = sketch20
pocket19.Type = "UpToFirst"
pocket19.Reversed = True

sketch21 = body.newObject("Sketcher::SketchObject", "Sketch020")
sketch21.AttachmentSupport = (doc.getObject("YZ_Plane"), [""])
sketch21.MapMode = "FlatFace"
sketch21.addGeometry(Part.Circle(Vector(41, 55.869164, 0), Vector(0, 0, 1), 1.5), False)
sketch21.addConstraint([
    Sketcher.Constraint("Diameter", 0, 3.0),
    Sketcher.Constraint("DistanceX", -1, 1, 0, 3, 41.0),
    Sketcher.Constraint("DistanceY", -1, 1, 0, 3, 55.869164),
])
pocket20 = body.newObject("PartDesign::Pocket", "Pocket019")
pocket20.Profile = sketch21
pocket20.Type = "UpToFirst"
pocket20.Reversed = True

doc.recompute()
